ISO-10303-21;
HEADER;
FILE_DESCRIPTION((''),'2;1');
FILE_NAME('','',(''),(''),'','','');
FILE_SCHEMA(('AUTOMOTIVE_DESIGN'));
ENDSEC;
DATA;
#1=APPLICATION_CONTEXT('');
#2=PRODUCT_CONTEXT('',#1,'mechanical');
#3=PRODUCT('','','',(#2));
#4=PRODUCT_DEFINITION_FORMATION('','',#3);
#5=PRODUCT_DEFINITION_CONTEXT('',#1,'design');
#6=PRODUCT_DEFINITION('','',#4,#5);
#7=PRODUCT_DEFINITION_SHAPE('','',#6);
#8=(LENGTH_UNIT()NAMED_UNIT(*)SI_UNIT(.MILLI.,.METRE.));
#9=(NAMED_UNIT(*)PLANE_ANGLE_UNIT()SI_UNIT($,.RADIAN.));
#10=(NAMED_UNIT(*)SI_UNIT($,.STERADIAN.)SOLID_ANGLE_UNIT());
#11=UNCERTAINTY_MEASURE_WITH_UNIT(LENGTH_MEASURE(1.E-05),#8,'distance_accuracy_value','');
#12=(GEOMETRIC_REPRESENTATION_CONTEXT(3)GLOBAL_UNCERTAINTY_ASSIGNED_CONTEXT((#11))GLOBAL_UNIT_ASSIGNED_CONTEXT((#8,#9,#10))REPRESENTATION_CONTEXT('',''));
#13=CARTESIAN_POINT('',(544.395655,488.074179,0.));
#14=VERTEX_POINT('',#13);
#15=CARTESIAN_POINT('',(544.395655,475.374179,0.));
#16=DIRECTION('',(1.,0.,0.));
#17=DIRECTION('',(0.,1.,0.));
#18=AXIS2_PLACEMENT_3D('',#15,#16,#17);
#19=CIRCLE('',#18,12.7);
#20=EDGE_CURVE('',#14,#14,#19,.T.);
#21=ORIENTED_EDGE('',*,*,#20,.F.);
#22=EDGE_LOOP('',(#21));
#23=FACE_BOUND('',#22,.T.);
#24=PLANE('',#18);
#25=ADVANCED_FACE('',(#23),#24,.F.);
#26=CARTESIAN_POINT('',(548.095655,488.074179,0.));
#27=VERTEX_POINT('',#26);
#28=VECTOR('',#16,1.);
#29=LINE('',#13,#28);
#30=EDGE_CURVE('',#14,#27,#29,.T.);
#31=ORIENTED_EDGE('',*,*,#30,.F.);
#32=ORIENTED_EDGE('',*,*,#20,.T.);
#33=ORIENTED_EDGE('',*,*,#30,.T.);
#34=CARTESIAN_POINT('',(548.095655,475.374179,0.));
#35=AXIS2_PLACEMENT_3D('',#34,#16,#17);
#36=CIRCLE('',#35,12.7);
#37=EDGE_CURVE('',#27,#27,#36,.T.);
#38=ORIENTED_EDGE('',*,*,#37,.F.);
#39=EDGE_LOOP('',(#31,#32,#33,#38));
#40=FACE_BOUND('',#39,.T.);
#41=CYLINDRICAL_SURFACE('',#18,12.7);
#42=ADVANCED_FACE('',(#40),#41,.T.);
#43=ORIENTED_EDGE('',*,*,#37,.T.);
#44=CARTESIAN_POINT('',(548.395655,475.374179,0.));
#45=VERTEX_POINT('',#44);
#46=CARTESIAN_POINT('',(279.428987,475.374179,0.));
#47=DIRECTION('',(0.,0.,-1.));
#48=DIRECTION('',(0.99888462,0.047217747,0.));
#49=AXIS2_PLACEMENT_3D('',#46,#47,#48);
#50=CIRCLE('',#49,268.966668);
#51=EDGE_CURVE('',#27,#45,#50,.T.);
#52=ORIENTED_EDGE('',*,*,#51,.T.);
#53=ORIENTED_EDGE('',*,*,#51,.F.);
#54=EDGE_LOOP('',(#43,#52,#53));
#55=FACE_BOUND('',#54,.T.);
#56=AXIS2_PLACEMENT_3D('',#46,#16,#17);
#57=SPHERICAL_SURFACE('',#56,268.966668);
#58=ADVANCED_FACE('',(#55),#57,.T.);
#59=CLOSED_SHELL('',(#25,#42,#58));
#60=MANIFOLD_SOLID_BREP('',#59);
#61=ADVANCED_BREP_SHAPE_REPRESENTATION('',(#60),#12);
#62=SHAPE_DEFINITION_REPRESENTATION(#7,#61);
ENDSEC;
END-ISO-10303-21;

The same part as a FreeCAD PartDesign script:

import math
import FreeCAD as App
import Part
import Sketcher
from FreeCAD import Vector
Q = App.Units.Quantity

doc = App.newDocument("Part")
params = doc.addObject("Spreadsheet::Sheet", "Params")
for row, (alias, value) in enumerate([
    ("sketch1_width", "4 mm"),
    ("sketch1_width2", "3.7 mm"),
    ("sketch1_height", "12.7 mm"),
    ("revolution_angle", "360 deg"),
], start=1):
    params.set(f"A{row}", alias)
    params.set(f"B{row}", "=" + value)
    params.setAlias(f"B{row}", alias)

body = doc.addObject("PartDesign::Body", "Body")

# Sketch on XY plane
sketch1 = body.newObject("Sketcher::SketchObject", "Sketch")
sketch1.AttachmentSupport = (doc.getObject("XY_Plane"), [""])
sketch1.MapMode = "FlatFace"
sketch1.addGeometry([
    Part.LineSegment(Vector(544.4, 488.1, 0), Vector(544.4, 475.4, 0)),
    Part.LineSegment(Vector(544.4, 475.4, 0), Vector(548.4, 475.4, 0)),
    Part.ArcOfCircle(Part.Circle(Vector(279.4, 475.4, 0), Vector(0, 0, 1), 269), math.radians(0), math.radians(2.71)),
    Part.LineSegment(Vector(548.1, 488.1, 0), Vector(544.4, 488.1, 0)),
], False)
sketch1.addGeometry(Part.LineSegment(Vector(279.4, 475.4, 0), Vector(548.4, 475.4, 0)), True)  # axis
sketch1.addConstraint([
    Sketcher.Constraint("Coincident", 0, 2, 1, 1),
    Sketcher.Constraint("Coincident", 1, 2, 2, 1),
    Sketcher.Constraint("Coincident", 2, 2, 3, 1),
    Sketcher.Constraint("Coincident", 3, 2, 0, 1),
    Sketcher.Constraint("Vertical", 0),
    Sketcher.Constraint("Horizontal", 1),
    Sketcher.Constraint("Horizontal", 3),
    Sketcher.Constraint("Horizontal", 4),
    Sketcher.Constraint("Coincident", 4, 1, 2, 3),
    Sketcher.Constraint("Coincident", 4, 2, 1, 2),
    Sketcher.Constraint("DistanceX", 1, 1, 1, 2, Q("4 mm")),
    Sketcher.Constraint("DistanceX", 3, 2, 3, 1, Q("3.7 mm")),
    Sketcher.Constraint("DistanceY", 0, 2, 0, 1, Q("12.7 mm")),
    Sketcher.Constraint("DistanceY", -1, 1, 2, 3, Q("475.374179 mm")),
    Sketcher.Constraint("DistanceX", -1, 1, 2, 3, Q("279.428987 mm")),
])
sketch1.setExpression("Constraints[10]", "Params.sketch1_width")
sketch1.setExpression("Constraints[11]", "Params.sketch1_width2")
sketch1.setExpression("Constraints[12]", "Params.sketch1_height")
revolution = body.newObject("PartDesign::Revolution", "Revolution")
revolution.Profile = sketch1
revolution.ReferenceAxis = (sketch1, ["Axis0"])
revolution.setExpression("Angle", "Params.revolution_angle")

doc.recompute()
